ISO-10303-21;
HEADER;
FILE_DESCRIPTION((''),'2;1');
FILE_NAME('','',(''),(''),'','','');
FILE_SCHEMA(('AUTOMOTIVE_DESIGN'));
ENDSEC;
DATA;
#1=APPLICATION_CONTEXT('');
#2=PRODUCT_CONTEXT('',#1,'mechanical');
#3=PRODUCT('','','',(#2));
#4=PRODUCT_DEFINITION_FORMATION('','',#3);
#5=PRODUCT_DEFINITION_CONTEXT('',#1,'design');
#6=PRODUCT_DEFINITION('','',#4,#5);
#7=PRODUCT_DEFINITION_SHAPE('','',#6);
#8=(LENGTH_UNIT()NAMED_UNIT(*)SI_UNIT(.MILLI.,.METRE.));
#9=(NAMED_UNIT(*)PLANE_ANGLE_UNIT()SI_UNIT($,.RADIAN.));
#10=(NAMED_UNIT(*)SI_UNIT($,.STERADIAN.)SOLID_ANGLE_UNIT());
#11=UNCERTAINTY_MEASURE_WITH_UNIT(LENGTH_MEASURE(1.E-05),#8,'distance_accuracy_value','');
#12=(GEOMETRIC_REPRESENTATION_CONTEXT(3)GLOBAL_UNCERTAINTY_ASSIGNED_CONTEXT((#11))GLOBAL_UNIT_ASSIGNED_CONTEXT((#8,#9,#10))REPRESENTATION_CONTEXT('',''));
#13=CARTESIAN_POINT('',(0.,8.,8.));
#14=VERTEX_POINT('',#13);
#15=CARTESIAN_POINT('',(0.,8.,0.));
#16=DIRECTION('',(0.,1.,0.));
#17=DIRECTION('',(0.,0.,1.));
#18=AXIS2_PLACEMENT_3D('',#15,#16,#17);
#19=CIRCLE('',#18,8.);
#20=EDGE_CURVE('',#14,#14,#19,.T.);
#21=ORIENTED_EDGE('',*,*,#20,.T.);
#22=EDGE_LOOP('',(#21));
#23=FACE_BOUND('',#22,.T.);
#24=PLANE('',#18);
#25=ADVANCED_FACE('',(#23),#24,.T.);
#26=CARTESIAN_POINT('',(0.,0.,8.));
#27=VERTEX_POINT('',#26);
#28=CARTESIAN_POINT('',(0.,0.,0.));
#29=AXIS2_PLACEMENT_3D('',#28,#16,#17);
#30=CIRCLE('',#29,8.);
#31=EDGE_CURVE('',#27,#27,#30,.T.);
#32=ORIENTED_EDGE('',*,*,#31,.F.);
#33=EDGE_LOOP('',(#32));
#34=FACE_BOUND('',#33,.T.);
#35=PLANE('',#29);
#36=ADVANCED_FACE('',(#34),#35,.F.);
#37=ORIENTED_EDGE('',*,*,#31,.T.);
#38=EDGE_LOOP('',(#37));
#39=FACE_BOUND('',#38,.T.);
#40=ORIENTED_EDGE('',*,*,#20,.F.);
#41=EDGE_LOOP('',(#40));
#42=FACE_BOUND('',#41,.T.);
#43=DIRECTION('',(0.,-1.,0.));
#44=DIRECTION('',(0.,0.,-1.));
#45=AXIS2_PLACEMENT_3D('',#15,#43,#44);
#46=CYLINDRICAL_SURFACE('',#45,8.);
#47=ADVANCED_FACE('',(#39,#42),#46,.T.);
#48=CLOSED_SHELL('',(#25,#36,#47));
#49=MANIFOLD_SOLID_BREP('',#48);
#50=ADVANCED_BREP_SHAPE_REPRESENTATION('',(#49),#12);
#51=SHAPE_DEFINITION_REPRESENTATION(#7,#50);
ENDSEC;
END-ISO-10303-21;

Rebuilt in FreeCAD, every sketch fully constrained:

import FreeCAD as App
import Part
import Sketcher

V = App.Vector

doc = App.newDocument("Part")
body = doc.addObject("PartDesign::Body", "Body")

# Sketch on XZ plane
sketch1 = doc.addObject("Sketcher::SketchObject", "Sketch")
body.addObject(sketch1)
sketch1.AttachmentSupport = (doc.XZ_Plane, [""])
sketch1.MapMode = "FlatFace"
sketch1.addGeometry(Part.Circle(V(0, 0, 0), V(0, 0, 1), 8), False)
sketch1.addConstraint([
    Sketcher.Constraint("Coincident", 0, 3, -1, 1),
    Sketcher.Constraint("Diameter", 0, 16.0),
])
pad1 = doc.addObject("PartDesign::Pad", "Pad")
body.addObject(pad1)
pad1.Profile = sketch1
pad1.Length = 8
pad1.Reversed = True

doc.recompute()
